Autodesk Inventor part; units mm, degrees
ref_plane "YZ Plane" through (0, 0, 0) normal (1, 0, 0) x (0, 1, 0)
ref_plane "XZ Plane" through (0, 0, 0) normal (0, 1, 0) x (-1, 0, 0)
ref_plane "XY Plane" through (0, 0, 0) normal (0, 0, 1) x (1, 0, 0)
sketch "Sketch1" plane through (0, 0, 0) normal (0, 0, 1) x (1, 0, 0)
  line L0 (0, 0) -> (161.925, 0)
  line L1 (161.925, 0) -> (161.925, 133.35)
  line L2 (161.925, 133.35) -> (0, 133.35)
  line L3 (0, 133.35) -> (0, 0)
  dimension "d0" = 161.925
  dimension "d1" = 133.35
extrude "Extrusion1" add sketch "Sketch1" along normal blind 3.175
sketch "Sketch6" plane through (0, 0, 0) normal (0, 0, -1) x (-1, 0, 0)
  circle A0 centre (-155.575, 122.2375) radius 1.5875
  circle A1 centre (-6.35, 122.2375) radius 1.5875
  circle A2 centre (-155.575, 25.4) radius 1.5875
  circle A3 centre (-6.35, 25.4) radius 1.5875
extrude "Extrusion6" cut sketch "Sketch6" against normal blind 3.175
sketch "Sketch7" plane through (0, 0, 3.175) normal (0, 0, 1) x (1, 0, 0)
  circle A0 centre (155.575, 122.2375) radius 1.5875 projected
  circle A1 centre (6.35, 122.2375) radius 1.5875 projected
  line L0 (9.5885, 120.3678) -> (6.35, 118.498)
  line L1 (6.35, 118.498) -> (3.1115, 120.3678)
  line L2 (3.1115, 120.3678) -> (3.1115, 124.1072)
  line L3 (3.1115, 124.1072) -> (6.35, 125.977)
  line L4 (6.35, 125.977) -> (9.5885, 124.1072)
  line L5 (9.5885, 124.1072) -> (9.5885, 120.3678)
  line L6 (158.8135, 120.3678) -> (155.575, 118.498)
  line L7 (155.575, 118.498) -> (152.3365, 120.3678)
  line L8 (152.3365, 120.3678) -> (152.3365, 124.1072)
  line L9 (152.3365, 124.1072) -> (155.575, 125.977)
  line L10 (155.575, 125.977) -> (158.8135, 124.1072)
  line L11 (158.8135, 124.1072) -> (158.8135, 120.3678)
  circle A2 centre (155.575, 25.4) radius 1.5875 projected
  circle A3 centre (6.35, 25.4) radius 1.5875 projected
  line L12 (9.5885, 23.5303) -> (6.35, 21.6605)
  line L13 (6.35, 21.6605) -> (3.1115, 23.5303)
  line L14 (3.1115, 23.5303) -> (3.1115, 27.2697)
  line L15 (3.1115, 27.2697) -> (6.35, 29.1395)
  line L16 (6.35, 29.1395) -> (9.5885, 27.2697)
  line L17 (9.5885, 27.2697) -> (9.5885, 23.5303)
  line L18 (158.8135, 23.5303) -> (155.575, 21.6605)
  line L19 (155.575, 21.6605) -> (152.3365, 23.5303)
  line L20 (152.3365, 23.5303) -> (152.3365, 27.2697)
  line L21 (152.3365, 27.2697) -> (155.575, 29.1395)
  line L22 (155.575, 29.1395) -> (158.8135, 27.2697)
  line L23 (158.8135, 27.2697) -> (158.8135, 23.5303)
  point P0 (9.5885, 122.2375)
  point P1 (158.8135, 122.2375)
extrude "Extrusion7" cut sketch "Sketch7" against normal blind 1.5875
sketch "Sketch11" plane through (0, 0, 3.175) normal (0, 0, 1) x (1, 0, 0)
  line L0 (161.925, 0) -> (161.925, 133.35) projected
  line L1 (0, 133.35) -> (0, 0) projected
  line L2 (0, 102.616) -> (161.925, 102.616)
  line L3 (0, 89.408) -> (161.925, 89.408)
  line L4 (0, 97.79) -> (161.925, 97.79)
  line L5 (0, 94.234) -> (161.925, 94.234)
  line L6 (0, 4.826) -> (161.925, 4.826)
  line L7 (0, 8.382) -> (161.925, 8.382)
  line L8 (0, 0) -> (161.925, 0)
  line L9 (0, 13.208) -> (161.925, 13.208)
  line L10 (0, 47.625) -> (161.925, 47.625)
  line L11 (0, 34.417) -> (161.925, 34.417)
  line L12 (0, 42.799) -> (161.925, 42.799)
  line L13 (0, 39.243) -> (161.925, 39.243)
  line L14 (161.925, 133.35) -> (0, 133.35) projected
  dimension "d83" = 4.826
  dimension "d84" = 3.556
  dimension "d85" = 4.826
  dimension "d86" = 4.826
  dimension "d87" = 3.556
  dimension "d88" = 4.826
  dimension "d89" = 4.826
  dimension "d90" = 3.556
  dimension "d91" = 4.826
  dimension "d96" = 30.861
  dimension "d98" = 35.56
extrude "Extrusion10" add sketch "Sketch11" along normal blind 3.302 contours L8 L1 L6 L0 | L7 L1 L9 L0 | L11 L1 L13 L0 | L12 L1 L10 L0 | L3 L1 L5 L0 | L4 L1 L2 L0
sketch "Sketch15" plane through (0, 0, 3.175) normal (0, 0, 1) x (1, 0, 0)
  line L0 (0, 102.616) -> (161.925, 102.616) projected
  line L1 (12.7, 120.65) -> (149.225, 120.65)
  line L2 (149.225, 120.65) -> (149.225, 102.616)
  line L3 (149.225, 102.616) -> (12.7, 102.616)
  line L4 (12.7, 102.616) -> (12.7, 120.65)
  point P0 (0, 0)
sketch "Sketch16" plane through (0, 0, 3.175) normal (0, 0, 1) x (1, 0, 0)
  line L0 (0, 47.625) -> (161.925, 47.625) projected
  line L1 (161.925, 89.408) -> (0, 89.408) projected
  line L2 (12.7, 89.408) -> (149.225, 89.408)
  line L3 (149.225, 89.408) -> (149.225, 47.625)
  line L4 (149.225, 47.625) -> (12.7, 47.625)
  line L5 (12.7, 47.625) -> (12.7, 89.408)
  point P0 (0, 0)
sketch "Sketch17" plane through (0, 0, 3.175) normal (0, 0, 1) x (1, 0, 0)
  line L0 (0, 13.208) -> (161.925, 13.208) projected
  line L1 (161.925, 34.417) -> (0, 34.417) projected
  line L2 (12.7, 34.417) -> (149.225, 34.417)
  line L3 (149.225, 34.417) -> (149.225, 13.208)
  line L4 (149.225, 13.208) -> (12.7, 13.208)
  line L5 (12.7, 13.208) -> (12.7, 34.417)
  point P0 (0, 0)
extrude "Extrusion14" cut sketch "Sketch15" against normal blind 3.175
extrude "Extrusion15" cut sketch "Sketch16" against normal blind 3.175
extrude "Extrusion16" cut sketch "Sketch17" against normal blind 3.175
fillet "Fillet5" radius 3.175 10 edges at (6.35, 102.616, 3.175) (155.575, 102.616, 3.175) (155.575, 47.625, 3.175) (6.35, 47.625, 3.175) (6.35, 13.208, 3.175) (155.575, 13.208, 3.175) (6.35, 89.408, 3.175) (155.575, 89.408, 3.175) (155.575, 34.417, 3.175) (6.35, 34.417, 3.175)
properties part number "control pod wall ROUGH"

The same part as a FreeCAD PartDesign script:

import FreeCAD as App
import Part
import Sketcher

V = App.Vector
Q = App.Units.Quantity


def edges_at(feature, points):
    """Names of the edges that pass closest to the given points."""
    edges = feature.Shape.Edges
    near = lambda p: min(range(len(edges)), key=lambda i: edges[i].distToShape(Part.Vertex(*p))[0])
    return sorted({f"Edge{near(p) + 1}" for p in points})


def add_polygon(sketch, points):
    """Adds a closed chain of lines whose ends are joined by coincident constraints."""
    first, n = sketch.GeometryCount, len(points)
    for a, b in zip(points, points[1:] + points[:1]):
        sketch.addGeometry(Part.LineSegment(App.Vector(*a, 0), App.Vector(*b, 0)), False)
    for i in range(n):
        sketch.addConstraint(Sketcher.Constraint("Coincident", first + i, 2, first + (i + 1) % n, 1))

doc = App.newDocument("Part")
body = doc.addObject("PartDesign::Body", "Body")

# Sketch on XY plane
sketch1 = body.newObject("Sketcher::SketchObject", "Sketch")
sketch1.AttachmentSupport = (doc.getObject("XY_Plane"), [""])
sketch1.MapMode = "FlatFace"
add_polygon(sketch1, [(0, 133), (0, 0), (162, 0), (162, 133)])  # lines 0-3
sketch1.addConstraint([
    Sketcher.Constraint("Vertical", 0),
    Sketcher.Constraint("Horizontal", 1),
    Sketcher.Constraint("Vertical", 2),
    Sketcher.Constraint("Horizontal", 3),
    Sketcher.Constraint("Coincident", 0, 2, -1, 1),
    Sketcher.Constraint("DistanceY", 0, 2, 0, 1, Q("5.25 in")),
    Sketcher.Constraint("DistanceX", 1, 1, 1, 2, Q("6.375 in")),
])
pad1 = body.newObject("PartDesign::Pad", "Pad")
pad1.Profile = sketch1
pad1.Length = Q("0.125 in")

# Sketch on XY plane
sketch2 = body.newObject("Sketcher::SketchObject", "Sketch001")
sketch2.AttachmentSupport = (doc.getObject("XY_Plane"), [""])
sketch2.MapMode = "FlatFace"
sketch2.addGeometry([
    Part.Circle(V(155.6, 122.2, 0), V(0, 0, 1), 1.6),
    Part.Circle(V(6.3, 122.2, 0), V(0, 0, 1), 1.6),
    Part.Circle(V(155.6, 25.4, 0), V(0, 0, 1), 1.6),
    Part.Circle(V(6.3, 25.4, 0), V(0, 0, 1), 1.6),
], False)
sketch2.addConstraint([
    Sketcher.Constraint("Equal", 0, 1),
    Sketcher.Constraint("Equal", 1, 2),
    Sketcher.Constraint("Equal", 2, 3),
    Sketcher.Constraint("Horizontal", 0, 3, 1, 3),
    Sketcher.Constraint("Horizontal", 2, 3, 3, 3),
    Sketcher.Constraint("Vertical", 0, 3, 2, 3),
    Sketcher.Constraint("Vertical", 1, 3, 3, 3),
    Sketcher.Constraint("Diameter", 0, Q("0.125 in")),
    Sketcher.Constraint("DistanceY", -1, 1, 2, 3, Q("1 in")),
    Sketcher.Constraint("DistanceX", -1, 1, 1, 3, Q("0.25 in")),
    Sketcher.Constraint("DistanceX", -1, 1, 0, 3, Q("6.125 in")),
    Sketcher.Constraint("DistanceY", -1, 1, 0, 3, Q("4.8125 in")),
])
pocket1 = body.newObject("PartDesign::Pocket", "Pocket")
pocket1.Profile = sketch2
pocket1.Length = Q("0.125 in")
pocket1.Reversed = True

# Sketch on XY plane
sketch3 = body.newObject("Sketcher::SketchObject", "Sketch002")
sketch3.AttachmentSupport = (doc.getObject("XY_Plane"), [""])
sketch3.MapMode = "FlatFace"
sketch3.AttachmentOffset = App.Placement(V(0, 0, 0.125 * 25.4), App.Rotation())
add_polygon(sketch3, [(6.3, 118.5), (9.6, 120.4), (9.6, 124.1), (6.3, 126), (3.1, 124.1), (3.1, 120.4)])  # lines 0-5
sketch3.addGeometry(Part.Circle(V(6.3, 122.2, 0), V(0, 0, 1), 1.6), False)  # 6
add_polygon(sketch3, [(155.6, 118.5), (158.8, 120.4), (158.8, 124.1), (155.6, 126), (152.3, 124.1), (152.3, 120.4)])  # lines 7-12
sketch3.addGeometry(Part.Circle(V(155.6, 122.2, 0), V(0, 0, 1), 1.6), False)  # 13
add_polygon(sketch3, [(6.3, 21.7), (9.6, 23.5), (9.6, 27.3), (6.3, 29.1), (3.1, 27.3), (3.1, 23.5)])  # lines 14-19
sketch3.addGeometry(Part.Circle(V(6.3, 25.4, 0), V(0, 0, 1), 1.6), False)  # 20
add_polygon(sketch3, [(155.6, 21.7), (158.8, 23.5), (158.8, 27.3), (155.6, 29.1), (152.3, 27.3), (152.3, 23.5)])  # lines 21-26
sketch3.addGeometry(Part.Circle(V(155.6, 25.4, 0), V(0, 0, 1), 1.6), False)  # 27
sketch3.addConstraint([
    Sketcher.Constraint("Vertical", 1),
    Sketcher.Constraint("Vertical", 4),
    Sketcher.Constraint("Vertical", 8),
    Sketcher.Constraint("Vertical", 11),
    Sketcher.Constraint("Vertical", 15),
    Sketcher.Constraint("Vertical", 18),
    Sketcher.Constraint("Vertical", 22),
    Sketcher.Constraint("Vertical", 25),
    Sketcher.Constraint("Equal", 6, 13),
    Sketcher.Constraint("Equal", 13, 20),
    Sketcher.Constraint("Equal", 20, 27),
    Sketcher.Constraint("Parallel", 0, 3),
    Sketcher.Constraint("Parallel", 2, 5),
    Sketcher.Constraint("Parallel", 3, 7),
    Sketcher.Constraint("Parallel", 5, 9),
    Sketcher.Constraint("Parallel", 7, 10),
    Sketcher.Constraint("Parallel", 9, 12),
    Sketcher.Constraint("Parallel", 10, 14),
    Sketcher.Constraint("Parallel", 12, 16),
    Sketcher.Constraint("Parallel", 14, 17),
    Sketcher.Constraint("Parallel", 16, 19),
    Sketcher.Constraint("Parallel", 17, 21),
    Sketcher.Constraint("Parallel", 19, 23),
    Sketcher.Constraint("Parallel", 21, 24),
    Sketcher.Constraint("Parallel", 23, 26),
    Sketcher.Constraint("Horizontal", 6, 3, 13, 3),
    Sketcher.Constraint("Horizontal", 20, 3, 27, 3),
    Sketcher.Constraint("Horizontal", 1, 2, 3, 2),
    Sketcher.Constraint("Horizontal", 0, 2, 4, 2),
    Sketcher.Constraint("Horizontal", 4, 2, 7, 2),
    Sketcher.Constraint("Horizontal", 3, 2, 8, 2),
    Sketcher.Constraint("Horizontal", 2, 2, 9, 2),
    Sketcher.Constraint("Horizontal", 8, 2, 10, 2),
    Sketcher.Constraint("Horizontal", 7, 2, 11, 2),
    Sketcher.Constraint("Horizontal", 15, 2, 17, 2),
    Sketcher.Constraint("Horizontal", 14, 2, 18, 2),
    Sketcher.Constraint("Horizontal", 18, 2, 21, 2),
    Sketcher.Constraint("Horizontal", 17, 2, 22, 2),
    Sketcher.Constraint("Horizontal", 16, 2, 23, 2),
    Sketcher.Constraint("Horizontal", 22, 2, 24, 2),
    Sketcher.Constraint("Horizontal", 21, 2, 25, 2),
    Sketcher.Constraint("Vertical", 6, 3, 20, 3),
    Sketcher.Constraint("Vertical", 13, 3, 27, 3),
    Sketcher.Constraint("Vertical", 20, 3, 2, 2),
    Sketcher.Constraint("Vertical", 2, 2, 5, 2),
    Sketcher.Constraint("Vertical", 27, 3, 9, 2),
    Sketcher.Constraint("Vertical", 1, 2, 14, 2),
    Sketcher.Constraint("Vertical", 5, 2, 16, 2),
    Sketcher.Constraint("Vertical", 8, 2, 21, 2),
    Sketcher.Constraint("Equal", 11, 15),
    Sketcher.Constraint("Diameter", 6, Q("0.125 in")),
    Sketcher.Constraint("DistanceY", -1, 1, 20, 3, Q("1 in")),
    Sketcher.Constraint("Angle", 0, Q("30.0007 deg")),
    Sketcher.Constraint("DistanceX", -1, 1, 6, 3, Q("0.25 in")),
    Sketcher.Constraint("DistanceY", -1, 1, 6, 3, Q("4.8125 in")),
    Sketcher.Constraint("DistanceX", -1, 1, 13, 3, Q("6.125 in")),
    Sketcher.Constraint("DistanceX", 3, 2, 1, 2, Q("0.255 in")),
    Sketcher.Constraint("DistanceY", 14, 2, 0, 2, Q("3.8125 in")),
    Sketcher.Constraint("DistanceY", 1, 1, 1, 2, Q("3.7394 mm")),
    Sketcher.Constraint("DistanceY", -1, 1, 0, 2, Q("4.7389 in")),
])
pocket2 = body.newObject("PartDesign::Pocket", "Pocket001")
pocket2.Profile = sketch3
pocket2.Length = Q("0.0625 in")

# Sketch on XY plane
sketch4 = body.newObject("Sketcher::SketchObject", "Sketch003")
sketch4.AttachmentSupport = (doc.getObject("XY_Plane"), [""])
sketch4.MapMode = "FlatFace"
sketch4.AttachmentOffset = App.Placement(V(0, 0, 0.125 * 25.4), App.Rotation())
add_polygon(sketch4, [(0, 0), (161.9, 0), (161.9, 4.8), (0, 4.8)])  # lines 0-3
add_polygon(sketch4, [(0, 8.4), (161.9, 8.4), (161.9, 13.2), (0, 13.2)])  # lines 4-7
add_polygon(sketch4, [(0, 34.4), (161.9, 34.4), (161.9, 39.2), (0, 39.2)])  # lines 8-11
add_polygon(sketch4, [(0, 42.8), (161.9, 42.8), (161.9, 47.6), (0, 47.6)])  # lines 12-15
add_polygon(sketch4, [(0, 89.4), (161.9, 89.4), (161.9, 94.2), (0, 94.2)])  # lines 16-19
add_polygon(sketch4, [(0, 97.8), (161.9, 97.8), (161.9, 102.6), (0, 102.6)])  # lines 20-23
sketch4.addConstraint([
    Sketcher.Constraint("Horizontal", 0),
    Sketcher.Constraint("Vertical", 1),
    Sketcher.Constraint("Horizontal", 2),
    Sketcher.Constraint("Vertical", 3),
    Sketcher.Constraint("Horizontal", 4),
    Sketcher.Constraint("Vertical", 5),
    Sketcher.Constraint("Horizontal", 6),
    Sketcher.Constraint("Vertical", 7),
    Sketcher.Constraint("Horizontal", 8),
    Sketcher.Constraint("Vertical", 9),
    Sketcher.Constraint("Horizontal", 10),
    Sketcher.Constraint("Vertical", 11),
    Sketcher.Constraint("Horizontal", 12),
    Sketcher.Constraint("Vertical", 13),
    Sketcher.Constraint("Horizontal", 14),
    Sketcher.Constraint("Vertical", 15),
    Sketcher.Constraint("Horizontal", 16),
    Sketcher.Constraint("Vertical", 17),
    Sketcher.Constraint("Horizontal", 18),
    Sketcher.Constraint("Vertical", 19),
    Sketcher.Constraint("Horizontal", 20),
    Sketcher.Constraint("Vertical", 21),
    Sketcher.Constraint("Horizontal", 22),
    Sketcher.Constraint("Vertical", 23),
    Sketcher.Constraint("Coincident", 3, 2, -1, 1),
    Sketcher.Constraint("PointOnObject", 6, 2, -2),
    Sketcher.Constraint("PointOnObject", 10, 2, -2),
    Sketcher.Constraint("PointOnObject", 14, 2, -2),
    Sketcher.Constraint("PointOnObject", 18, 2, -2),
    Sketcher.Constraint("PointOnObject", 22, 2, -2),
    Sketcher.Constraint("Vertical", 1, 2, 4, 2),
    Sketcher.Constraint("Vertical", 5, 2, 8, 2),
    Sketcher.Constraint("Vertical", 9, 2, 12, 2),
    Sketcher.Constraint("Vertical", 13, 2, 16, 2),
    Sketcher.Constraint("Vertical", 17, 2, 20, 2),
    Sketcher.Constraint("Equal", 3, 5),
    Sketcher.Constraint("Equal", 7, 9),
    Sketcher.Constraint("Equal", 11, 13),
    Sketcher.Constraint("Equal", 15, 17),
    Sketcher.Constraint("Equal", 19, 21),
    Sketcher.Constraint("DistanceY", 1, 1, 1, 2, Q("0.19 in")),
    Sketcher.Constraint("DistanceY", 1, 2, 4, 2, Q("0.14 in")),
    Sketcher.Constraint("DistanceY", 9, 2, 12, 2, Q("0.14 in")),
    Sketcher.Constraint("DistanceY", 17, 2, 20, 2, Q("0.14 in")),
    Sketcher.Constraint("DistanceY", 4, 2, 9, 2, Q("1.215 in")),
    Sketcher.Constraint("DistanceY", 5, 2, 16, 2, Q("3 in")),
    Sketcher.Constraint("DistanceX", 0, 1, 0, 2, Q("6.375 in")),
])
pad2 = body.newObject("PartDesign::Pad", "Pad001")
pad2.Profile = sketch4
pad2.Length = Q("0.13 in")

# Sketch on XY plane
sketch5 = body.newObject("Sketcher::SketchObject", "Sketch004")
sketch5.AttachmentSupport = (doc.getObject("XY_Plane"), [""])
sketch5.MapMode = "FlatFace"
sketch5.AttachmentOffset = App.Placement(V(0, 0, 0.125 * 25.4), App.Rotation())
add_polygon(sketch5, [(13, 121), (13, 103), (149, 103), (149, 121)])  # lines 0-3
sketch5.addConstraint([
    Sketcher.Constraint("Vertical", 0),
    Sketcher.Constraint("Horizontal", 1),
    Sketcher.Constraint("Vertical", 2),
    Sketcher.Constraint("Horizontal", 3),
    Sketcher.Constraint("DistanceY", 0, 2, 0, 1, Q("0.71 in")),
    Sketcher.Constraint("DistanceX", -1, 1, 0, 2, Q("0.5 in")),
    Sketcher.Constraint("DistanceX", 1, 1, 1, 2, Q("5.375 in")),
    Sketcher.Constraint("DistanceY", -1, 1, 0, 2, Q("4.04 in")),
])
pocket3 = body.newObject("PartDesign::Pocket", "Pocket002")
pocket3.Profile = sketch5
pocket3.Length = Q("0.125 in")

# Sketch on XY plane
sketch6 = body.newObject("Sketcher::SketchObject", "Sketch005")
sketch6.AttachmentSupport = (doc.getObject("XY_Plane"), [""])
sketch6.MapMode = "FlatFace"
sketch6.AttachmentOffset = App.Placement(V(0, 0, 0.125 * 25.4), App.Rotation())
add_polygon(sketch6, [(13, 89), (13, 48), (149, 48), (149, 89)])  # lines 0-3
sketch6.addConstraint([
    Sketcher.Constraint("Vertical", 0),
    Sketcher.Constraint("Horizontal", 1),
    Sketcher.Constraint("Vertical", 2),
    Sketcher.Constraint("Horizontal", 3),
    Sketcher.Constraint("DistanceX", -1, 1, 0, 2, Q("0.5 in")),
    Sketcher.Constraint("DistanceX", 1, 1, 1, 2, Q("5.375 in")),
    Sketcher.Constraint("DistanceY", 0, 2, 0, 1, Q("1.645 in")),
    Sketcher.Constraint("DistanceY", -1, 1, 2, 2, Q("3.52 in")),
])
pocket4 = body.newObject("PartDesign::Pocket", "Pocket003")
pocket4.Profile = sketch6
pocket4.Length = Q("0.125 in")

# Sketch on XY plane
sketch7 = body.newObject("Sketcher::SketchObject", "Sketch006")
sketch7.AttachmentSupport = (doc.getObject("XY_Plane"), [""])
sketch7.MapMode = "FlatFace"
sketch7.AttachmentOffset = App.Placement(V(0, 0, 0.125 * 25.4), App.Rotation())
add_polygon(sketch7, [(13, 34), (13, 13), (149, 13), (149, 34)])  # lines 0-3
sketch7.addConstraint([
    Sketcher.Constraint("Vertical", 0),
    Sketcher.Constraint("Horizontal", 1),
    Sketcher.Constraint("Vertical", 2),
    Sketcher.Constraint("Horizontal", 3),
    Sketcher.Constraint("DistanceX", -1, 1, 0, 2, Q("0.5 in")),
    Sketcher.Constraint("DistanceX", 1, 1, 1, 2, Q("5.375 in")),
    Sketcher.Constraint("DistanceY", 0, 2, 0, 1, Q("0.835 in")),
    Sketcher.Constraint("DistanceY", -1, 1, 0, 2, Q("0.52 in")),
])
pocket5 = body.newObject("PartDesign::Pocket", "Pocket004")
pocket5.Profile = sketch7
pocket5.Length = Q("0.125 in")
doc.recompute()

fillet = body.newObject("PartDesign::Fillet", "Fillet")
fillet.Base = (pocket5, edges_at(pocket5, [
    (6.35, 102.616, 3.175),
    (155.575, 102.616, 3.175),
    (155.575, 47.625, 3.175),
    (6.35, 47.625, 3.175),
    (6.35, 13.208, 3.175),
    (155.575, 13.208, 3.175),
    (6.35, 89.408, 3.175),
    (155.575, 89.408, 3.175),
    (155.575, 34.417, 3.175),
    (6.35, 34.417, 3.175),
]))
fillet.Radius = Q("0.125 in")

doc.recompute()
